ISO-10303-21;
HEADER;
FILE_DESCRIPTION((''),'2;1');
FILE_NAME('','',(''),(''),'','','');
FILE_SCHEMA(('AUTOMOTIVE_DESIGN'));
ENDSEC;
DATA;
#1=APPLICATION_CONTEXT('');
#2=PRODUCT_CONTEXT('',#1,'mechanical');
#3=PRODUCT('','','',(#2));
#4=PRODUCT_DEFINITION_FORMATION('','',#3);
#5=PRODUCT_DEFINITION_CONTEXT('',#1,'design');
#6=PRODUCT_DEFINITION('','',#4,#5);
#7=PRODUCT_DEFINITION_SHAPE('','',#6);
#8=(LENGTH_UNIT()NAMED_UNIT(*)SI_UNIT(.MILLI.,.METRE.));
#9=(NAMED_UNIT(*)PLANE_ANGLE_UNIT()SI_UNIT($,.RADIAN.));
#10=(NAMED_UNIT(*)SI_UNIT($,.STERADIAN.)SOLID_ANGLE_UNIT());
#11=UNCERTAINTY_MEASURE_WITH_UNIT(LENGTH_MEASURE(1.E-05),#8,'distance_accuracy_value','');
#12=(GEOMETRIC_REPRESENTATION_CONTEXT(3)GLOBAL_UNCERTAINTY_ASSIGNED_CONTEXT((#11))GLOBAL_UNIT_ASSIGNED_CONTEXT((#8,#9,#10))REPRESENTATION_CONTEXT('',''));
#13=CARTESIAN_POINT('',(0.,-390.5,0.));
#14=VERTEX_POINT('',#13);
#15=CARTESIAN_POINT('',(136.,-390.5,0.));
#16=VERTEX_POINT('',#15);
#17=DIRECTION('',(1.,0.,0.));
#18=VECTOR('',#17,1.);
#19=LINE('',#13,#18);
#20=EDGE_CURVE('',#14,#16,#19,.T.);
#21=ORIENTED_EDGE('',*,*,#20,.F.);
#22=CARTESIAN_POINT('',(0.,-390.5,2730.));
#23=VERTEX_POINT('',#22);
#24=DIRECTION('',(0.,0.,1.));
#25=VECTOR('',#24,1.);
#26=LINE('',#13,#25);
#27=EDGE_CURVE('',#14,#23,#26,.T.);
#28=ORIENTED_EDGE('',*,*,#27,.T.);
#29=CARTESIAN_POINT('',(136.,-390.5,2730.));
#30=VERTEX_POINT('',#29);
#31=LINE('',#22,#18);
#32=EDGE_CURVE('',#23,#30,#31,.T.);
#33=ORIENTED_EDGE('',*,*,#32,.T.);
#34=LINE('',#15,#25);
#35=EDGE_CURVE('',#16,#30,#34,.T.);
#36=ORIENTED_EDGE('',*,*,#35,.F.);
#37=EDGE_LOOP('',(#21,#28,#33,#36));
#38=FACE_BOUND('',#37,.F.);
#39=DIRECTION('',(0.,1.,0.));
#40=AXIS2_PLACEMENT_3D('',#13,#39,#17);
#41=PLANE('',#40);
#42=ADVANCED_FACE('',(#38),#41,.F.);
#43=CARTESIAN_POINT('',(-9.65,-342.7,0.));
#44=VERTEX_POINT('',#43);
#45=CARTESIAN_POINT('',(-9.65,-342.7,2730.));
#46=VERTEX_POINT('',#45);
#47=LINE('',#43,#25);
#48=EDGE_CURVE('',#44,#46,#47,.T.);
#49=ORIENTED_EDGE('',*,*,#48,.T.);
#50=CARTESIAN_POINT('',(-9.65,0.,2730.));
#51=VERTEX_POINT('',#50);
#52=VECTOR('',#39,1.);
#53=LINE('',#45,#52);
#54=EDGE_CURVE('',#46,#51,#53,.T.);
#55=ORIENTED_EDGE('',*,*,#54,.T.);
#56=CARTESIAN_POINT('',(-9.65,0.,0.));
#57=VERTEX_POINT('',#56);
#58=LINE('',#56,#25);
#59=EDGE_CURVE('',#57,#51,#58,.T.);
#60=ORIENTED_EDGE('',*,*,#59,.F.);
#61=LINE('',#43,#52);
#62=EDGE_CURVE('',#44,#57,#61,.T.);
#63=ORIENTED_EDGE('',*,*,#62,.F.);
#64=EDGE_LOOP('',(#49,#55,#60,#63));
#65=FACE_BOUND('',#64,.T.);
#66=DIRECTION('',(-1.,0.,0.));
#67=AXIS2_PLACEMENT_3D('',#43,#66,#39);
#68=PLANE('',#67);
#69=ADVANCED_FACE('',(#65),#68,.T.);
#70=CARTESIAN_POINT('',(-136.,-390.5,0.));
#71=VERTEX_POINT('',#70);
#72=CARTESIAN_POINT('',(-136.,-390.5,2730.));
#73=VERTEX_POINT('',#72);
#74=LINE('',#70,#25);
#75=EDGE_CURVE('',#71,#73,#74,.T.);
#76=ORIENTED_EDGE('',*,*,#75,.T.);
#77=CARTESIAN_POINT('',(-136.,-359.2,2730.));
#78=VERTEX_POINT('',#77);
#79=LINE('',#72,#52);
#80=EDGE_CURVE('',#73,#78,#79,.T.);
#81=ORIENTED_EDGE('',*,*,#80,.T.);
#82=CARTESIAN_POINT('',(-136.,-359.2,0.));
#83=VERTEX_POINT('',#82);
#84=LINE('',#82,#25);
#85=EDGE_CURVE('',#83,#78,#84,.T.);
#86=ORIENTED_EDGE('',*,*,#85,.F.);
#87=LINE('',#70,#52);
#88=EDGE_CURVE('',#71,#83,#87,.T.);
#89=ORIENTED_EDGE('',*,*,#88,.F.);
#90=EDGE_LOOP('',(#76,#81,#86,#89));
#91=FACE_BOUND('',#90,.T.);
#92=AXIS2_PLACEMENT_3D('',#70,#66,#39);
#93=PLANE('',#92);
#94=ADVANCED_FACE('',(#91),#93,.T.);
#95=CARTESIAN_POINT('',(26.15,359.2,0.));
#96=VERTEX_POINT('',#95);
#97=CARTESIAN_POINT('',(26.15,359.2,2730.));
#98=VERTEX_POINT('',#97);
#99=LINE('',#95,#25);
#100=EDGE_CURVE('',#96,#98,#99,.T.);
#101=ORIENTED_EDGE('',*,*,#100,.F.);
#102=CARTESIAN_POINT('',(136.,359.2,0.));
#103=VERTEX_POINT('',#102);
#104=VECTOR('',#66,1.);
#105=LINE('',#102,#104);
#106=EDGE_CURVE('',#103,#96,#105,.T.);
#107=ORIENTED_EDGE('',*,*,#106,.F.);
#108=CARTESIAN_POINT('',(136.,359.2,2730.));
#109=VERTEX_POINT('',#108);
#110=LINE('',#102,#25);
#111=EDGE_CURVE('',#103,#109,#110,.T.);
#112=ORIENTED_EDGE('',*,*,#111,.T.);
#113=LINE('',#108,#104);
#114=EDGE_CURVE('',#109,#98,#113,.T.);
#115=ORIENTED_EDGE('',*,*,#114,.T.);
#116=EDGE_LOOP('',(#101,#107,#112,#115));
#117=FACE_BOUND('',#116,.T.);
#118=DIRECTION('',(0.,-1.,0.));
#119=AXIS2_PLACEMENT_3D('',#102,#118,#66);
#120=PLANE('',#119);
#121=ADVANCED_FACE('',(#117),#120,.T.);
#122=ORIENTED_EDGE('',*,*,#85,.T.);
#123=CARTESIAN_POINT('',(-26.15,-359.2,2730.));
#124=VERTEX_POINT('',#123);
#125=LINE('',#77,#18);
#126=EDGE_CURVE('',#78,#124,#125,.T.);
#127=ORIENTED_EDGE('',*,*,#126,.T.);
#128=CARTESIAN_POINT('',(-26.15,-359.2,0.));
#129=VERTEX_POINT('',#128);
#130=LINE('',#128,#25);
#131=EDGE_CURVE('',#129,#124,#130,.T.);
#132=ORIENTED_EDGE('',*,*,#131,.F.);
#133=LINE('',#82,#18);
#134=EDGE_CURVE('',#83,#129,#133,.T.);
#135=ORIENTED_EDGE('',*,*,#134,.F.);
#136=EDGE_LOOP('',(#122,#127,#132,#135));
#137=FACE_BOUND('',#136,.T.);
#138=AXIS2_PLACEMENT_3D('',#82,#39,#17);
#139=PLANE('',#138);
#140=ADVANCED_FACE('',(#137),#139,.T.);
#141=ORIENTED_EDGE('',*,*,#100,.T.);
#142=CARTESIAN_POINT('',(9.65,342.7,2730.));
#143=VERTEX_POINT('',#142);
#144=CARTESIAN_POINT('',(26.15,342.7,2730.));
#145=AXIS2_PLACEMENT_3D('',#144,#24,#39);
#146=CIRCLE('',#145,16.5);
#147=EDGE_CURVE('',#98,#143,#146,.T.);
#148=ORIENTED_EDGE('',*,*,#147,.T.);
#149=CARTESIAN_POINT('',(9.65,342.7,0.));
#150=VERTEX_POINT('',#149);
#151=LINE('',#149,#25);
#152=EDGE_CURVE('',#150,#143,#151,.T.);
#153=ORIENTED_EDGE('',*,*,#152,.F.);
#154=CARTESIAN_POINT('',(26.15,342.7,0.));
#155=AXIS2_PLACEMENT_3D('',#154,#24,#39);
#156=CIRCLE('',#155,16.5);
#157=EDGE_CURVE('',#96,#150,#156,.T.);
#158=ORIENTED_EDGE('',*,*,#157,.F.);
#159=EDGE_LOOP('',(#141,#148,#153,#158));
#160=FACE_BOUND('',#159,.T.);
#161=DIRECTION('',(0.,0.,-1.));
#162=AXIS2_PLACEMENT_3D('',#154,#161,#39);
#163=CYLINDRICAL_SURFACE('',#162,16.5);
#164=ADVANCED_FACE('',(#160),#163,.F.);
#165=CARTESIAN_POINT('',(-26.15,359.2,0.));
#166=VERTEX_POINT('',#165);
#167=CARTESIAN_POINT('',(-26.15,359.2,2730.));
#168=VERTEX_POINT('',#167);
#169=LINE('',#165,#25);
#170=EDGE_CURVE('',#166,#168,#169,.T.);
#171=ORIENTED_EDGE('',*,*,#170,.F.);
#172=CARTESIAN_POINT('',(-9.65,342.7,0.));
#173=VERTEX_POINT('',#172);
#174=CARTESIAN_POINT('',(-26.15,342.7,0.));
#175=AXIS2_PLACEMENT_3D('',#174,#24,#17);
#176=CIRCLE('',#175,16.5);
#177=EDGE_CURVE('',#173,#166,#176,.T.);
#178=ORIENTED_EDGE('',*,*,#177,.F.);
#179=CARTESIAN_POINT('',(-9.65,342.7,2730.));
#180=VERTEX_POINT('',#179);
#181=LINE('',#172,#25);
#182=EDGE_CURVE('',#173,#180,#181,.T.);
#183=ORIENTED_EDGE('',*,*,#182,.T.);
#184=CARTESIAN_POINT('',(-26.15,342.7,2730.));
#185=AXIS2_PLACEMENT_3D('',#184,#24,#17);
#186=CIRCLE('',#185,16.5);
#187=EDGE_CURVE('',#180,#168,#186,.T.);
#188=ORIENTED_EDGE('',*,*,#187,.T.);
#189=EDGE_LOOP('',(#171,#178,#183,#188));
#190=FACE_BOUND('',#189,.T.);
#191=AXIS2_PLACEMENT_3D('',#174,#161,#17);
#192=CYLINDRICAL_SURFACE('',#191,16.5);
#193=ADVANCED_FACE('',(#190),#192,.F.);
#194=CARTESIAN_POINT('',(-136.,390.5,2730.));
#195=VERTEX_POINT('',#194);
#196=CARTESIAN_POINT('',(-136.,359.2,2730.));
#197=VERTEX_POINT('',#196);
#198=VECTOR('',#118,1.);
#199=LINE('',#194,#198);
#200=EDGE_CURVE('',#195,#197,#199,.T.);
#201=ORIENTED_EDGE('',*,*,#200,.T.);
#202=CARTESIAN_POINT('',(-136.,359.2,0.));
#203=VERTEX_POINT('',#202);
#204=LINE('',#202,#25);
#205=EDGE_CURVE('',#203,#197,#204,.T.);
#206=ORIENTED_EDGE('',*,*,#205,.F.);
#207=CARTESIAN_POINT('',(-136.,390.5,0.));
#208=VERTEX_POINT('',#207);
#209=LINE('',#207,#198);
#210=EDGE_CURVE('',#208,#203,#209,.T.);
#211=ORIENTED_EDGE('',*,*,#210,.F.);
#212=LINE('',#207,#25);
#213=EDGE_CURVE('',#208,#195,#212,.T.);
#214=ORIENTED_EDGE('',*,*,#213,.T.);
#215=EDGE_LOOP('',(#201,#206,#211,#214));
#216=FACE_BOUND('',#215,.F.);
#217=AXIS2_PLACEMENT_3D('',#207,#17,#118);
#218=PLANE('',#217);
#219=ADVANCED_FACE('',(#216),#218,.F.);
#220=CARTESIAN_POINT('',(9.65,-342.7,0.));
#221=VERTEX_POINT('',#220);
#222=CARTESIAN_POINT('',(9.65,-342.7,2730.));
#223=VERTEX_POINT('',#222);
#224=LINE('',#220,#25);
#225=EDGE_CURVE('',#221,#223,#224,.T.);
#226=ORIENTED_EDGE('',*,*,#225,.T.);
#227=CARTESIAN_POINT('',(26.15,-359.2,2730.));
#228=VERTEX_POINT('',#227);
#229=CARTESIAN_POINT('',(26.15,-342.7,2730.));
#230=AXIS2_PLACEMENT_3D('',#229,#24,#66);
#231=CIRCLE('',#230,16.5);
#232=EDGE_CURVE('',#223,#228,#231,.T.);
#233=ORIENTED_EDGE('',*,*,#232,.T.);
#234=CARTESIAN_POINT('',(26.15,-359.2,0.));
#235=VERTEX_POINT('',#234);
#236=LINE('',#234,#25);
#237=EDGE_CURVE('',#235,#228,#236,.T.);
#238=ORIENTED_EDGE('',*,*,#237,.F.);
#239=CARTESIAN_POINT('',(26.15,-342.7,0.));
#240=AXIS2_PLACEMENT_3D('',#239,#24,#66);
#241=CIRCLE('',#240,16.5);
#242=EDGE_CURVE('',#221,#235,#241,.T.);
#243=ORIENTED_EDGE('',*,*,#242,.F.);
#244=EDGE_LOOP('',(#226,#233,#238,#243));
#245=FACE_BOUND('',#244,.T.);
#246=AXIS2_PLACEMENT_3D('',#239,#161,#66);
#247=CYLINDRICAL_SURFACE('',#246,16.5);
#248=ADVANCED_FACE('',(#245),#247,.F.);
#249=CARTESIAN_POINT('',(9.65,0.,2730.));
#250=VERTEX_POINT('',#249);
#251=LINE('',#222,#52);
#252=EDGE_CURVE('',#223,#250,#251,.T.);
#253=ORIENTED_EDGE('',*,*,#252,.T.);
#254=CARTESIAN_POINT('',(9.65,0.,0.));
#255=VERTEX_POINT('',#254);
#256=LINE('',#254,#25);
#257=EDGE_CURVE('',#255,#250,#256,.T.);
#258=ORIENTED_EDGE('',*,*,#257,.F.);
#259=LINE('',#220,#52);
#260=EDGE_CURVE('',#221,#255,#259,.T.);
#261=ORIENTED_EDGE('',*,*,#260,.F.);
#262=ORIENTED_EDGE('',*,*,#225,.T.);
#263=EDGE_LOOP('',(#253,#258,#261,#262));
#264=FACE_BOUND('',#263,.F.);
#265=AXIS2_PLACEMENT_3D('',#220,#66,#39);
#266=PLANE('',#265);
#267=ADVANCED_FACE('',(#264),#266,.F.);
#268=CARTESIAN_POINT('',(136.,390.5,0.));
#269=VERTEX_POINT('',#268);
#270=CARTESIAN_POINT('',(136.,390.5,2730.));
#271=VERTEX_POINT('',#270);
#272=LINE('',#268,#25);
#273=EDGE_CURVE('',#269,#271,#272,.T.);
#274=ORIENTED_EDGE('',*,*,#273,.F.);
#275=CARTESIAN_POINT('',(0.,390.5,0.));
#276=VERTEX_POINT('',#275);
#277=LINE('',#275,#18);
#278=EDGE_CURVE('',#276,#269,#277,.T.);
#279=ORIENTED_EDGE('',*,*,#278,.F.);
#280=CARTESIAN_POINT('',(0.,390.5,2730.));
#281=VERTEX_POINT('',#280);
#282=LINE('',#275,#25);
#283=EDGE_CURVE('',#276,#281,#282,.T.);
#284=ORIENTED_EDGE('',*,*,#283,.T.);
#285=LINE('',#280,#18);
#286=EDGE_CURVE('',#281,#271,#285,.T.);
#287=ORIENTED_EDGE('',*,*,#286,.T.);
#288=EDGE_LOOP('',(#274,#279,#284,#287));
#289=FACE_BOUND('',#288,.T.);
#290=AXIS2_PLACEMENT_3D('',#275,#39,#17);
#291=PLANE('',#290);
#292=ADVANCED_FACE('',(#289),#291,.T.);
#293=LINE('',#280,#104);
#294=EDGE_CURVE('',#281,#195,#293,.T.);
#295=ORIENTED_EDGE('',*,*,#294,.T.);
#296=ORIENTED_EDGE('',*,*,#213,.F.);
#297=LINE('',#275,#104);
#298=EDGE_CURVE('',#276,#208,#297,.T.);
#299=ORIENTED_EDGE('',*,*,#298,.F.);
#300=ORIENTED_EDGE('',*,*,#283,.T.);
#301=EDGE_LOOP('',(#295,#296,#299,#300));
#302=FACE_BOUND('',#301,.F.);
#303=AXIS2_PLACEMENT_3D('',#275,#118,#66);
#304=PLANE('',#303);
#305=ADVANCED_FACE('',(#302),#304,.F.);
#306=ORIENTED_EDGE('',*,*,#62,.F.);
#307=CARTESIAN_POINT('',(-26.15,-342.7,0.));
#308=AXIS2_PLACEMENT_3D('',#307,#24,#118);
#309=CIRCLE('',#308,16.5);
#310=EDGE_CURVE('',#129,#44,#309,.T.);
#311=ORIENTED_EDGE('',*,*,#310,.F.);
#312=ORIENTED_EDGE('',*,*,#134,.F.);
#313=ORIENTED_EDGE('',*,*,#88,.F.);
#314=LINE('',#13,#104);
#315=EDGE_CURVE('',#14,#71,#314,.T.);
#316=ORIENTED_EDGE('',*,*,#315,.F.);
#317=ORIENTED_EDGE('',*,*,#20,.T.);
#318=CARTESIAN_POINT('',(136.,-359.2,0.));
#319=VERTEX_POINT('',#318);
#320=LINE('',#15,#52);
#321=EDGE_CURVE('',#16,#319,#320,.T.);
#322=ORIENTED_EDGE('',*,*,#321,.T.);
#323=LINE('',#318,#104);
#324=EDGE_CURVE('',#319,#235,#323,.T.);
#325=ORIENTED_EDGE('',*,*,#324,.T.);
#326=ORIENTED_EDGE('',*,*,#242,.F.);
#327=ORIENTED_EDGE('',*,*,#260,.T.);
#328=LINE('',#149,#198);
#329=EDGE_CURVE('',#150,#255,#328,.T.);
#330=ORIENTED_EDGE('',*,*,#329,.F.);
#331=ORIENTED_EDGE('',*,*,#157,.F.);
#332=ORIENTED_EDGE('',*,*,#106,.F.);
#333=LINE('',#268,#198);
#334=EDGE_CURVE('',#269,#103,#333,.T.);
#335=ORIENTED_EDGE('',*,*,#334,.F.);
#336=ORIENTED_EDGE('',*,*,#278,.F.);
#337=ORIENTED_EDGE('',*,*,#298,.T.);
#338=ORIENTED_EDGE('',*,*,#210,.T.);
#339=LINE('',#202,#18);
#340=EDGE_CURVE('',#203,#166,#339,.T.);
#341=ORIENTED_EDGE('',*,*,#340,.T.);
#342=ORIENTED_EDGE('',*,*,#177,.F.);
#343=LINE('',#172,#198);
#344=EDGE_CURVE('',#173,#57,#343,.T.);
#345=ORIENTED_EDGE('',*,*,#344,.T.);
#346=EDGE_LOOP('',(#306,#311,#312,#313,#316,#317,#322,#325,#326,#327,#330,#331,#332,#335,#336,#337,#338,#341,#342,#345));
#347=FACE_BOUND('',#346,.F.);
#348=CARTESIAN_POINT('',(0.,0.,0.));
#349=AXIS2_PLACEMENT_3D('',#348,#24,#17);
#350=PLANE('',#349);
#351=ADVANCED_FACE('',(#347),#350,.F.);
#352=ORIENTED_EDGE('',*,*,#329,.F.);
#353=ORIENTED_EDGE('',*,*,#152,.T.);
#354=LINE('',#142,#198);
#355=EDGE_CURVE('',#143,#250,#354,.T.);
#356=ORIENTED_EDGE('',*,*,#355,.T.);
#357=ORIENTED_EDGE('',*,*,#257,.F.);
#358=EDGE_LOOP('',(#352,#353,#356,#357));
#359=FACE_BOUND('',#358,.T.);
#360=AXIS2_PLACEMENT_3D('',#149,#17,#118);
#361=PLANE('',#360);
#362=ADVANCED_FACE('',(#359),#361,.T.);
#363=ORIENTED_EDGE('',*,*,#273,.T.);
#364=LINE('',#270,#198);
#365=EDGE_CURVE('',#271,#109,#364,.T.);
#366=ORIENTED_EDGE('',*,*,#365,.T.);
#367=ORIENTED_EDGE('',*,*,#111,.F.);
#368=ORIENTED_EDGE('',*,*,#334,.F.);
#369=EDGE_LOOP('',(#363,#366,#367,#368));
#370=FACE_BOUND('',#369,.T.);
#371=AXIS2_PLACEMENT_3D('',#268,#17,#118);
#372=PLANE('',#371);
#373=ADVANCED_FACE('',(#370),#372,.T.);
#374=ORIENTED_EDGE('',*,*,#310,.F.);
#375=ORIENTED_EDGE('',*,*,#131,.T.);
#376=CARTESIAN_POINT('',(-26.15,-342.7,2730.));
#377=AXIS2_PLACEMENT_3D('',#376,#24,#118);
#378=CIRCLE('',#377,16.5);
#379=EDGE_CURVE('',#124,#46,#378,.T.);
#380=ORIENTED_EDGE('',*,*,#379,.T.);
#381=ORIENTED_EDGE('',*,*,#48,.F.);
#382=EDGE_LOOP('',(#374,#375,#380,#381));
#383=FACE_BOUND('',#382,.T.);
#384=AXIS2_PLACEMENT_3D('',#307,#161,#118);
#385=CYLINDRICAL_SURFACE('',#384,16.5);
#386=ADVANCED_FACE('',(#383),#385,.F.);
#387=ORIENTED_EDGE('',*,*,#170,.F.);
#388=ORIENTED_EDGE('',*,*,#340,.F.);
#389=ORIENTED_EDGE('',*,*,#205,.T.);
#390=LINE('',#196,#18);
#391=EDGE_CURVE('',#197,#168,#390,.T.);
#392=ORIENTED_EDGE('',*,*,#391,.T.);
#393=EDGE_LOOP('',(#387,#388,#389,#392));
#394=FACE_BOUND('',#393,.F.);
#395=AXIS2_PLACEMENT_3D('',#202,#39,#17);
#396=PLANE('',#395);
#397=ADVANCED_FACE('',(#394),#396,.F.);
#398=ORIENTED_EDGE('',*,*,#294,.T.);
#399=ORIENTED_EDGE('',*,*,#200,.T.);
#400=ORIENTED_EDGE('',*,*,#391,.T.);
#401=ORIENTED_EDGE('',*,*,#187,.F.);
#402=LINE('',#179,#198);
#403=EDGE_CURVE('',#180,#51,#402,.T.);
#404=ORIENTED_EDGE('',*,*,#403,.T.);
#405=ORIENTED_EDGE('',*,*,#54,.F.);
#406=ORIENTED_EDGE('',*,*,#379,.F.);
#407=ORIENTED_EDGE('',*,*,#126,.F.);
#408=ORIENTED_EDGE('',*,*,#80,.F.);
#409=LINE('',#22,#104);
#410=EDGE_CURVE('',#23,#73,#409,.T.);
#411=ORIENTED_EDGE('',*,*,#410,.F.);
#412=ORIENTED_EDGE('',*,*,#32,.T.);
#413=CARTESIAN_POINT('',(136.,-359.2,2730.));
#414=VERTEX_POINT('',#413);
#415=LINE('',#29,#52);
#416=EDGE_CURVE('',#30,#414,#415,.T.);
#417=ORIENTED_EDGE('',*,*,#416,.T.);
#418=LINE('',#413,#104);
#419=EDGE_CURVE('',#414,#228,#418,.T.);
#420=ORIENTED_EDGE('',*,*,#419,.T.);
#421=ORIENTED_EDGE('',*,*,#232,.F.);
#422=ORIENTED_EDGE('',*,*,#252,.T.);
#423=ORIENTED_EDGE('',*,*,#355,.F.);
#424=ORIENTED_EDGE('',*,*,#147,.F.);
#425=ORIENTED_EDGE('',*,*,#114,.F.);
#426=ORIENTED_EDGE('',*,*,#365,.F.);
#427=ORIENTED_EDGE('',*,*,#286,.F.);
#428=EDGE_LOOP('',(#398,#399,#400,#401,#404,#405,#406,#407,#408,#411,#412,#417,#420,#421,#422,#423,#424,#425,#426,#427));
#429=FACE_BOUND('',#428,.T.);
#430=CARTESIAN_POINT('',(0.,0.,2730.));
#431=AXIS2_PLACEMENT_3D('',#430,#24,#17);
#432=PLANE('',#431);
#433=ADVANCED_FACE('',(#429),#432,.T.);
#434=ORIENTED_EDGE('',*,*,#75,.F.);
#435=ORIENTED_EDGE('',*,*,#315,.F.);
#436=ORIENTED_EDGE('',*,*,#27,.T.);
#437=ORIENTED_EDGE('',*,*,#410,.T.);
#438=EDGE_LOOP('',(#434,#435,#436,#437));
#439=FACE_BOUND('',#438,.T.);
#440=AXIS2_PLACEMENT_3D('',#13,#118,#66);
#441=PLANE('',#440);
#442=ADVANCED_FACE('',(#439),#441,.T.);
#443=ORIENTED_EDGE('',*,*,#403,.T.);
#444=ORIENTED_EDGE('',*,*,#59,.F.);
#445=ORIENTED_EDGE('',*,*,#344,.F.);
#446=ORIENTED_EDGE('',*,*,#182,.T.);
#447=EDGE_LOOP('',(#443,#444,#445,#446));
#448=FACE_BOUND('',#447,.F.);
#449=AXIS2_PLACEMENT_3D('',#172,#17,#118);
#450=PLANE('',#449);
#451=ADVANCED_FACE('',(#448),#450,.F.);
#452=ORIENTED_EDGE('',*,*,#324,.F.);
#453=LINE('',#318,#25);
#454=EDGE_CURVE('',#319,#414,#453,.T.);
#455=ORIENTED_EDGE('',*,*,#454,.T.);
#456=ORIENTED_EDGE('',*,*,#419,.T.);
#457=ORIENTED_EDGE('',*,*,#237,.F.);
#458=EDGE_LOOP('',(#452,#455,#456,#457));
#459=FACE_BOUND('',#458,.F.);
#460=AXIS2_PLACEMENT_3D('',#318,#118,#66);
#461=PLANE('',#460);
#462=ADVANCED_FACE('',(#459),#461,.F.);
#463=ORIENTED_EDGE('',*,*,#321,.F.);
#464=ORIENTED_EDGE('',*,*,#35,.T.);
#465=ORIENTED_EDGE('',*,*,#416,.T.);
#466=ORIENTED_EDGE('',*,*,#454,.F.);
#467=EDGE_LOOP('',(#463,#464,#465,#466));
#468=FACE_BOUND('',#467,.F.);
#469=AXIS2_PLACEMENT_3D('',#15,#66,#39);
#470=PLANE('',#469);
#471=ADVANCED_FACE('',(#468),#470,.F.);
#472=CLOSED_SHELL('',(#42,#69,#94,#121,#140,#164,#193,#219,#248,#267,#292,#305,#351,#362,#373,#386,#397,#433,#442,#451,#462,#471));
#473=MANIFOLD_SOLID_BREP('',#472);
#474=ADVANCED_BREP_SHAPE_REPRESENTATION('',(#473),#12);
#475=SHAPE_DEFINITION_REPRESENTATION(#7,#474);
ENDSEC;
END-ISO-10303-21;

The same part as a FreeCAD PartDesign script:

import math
import FreeCAD as App
import Part
import Sketcher

V = App.Vector
Q = App.Units.Quantity

doc = App.newDocument("Part")
body = doc.addObject("PartDesign::Body", "Body")

sketch1 = doc.addObject("Sketcher::SketchObject", "Sketch")
body.addObject(sketch1)
sketch1.AttachmentSupport = (doc.XY_Plane, [""])
sketch1.MapMode = "FlatFace"
sketch1.addGeometry(Part.LineSegment(V(-136, -359, 0), V(-136, -390, 0)), False)
sketch1.addGeometry(Part.LineSegment(V(-136, -390, 0), V(136, -390, 0)), False)
sketch1.addGeometry(Part.LineSegment(V(136, -390, 0), V(136, -359, 0)), False)
sketch1.addGeometry(Part.LineSegment(V(136, -359, 0), V(26, -359, 0)), False)
sketch1.addGeometry(Part.ArcOfCircle(Part.Circle(V(26, -343, 0), V(0, 0, 1), 16), math.radians(180), math.radians(270)), False)
sketch1.addGeometry(Part.LineSegment(V(10, -343, 0), V(10, 343, 0)), False)
sketch1.addGeometry(Part.ArcOfCircle(Part.Circle(V(26, 343, 0), V(0, 0, 1), 16), math.radians(90), math.radians(180)), False)
sketch1.addGeometry(Part.LineSegment(V(26, 359, 0), V(136, 359, 0)), False)
sketch1.addGeometry(Part.LineSegment(V(136, 359, 0), V(136, 390, 0)), False)
sketch1.addGeometry(Part.LineSegment(V(136, 390, 0), V(-136, 390, 0)), False)
sketch1.addGeometry(Part.LineSegment(V(-136, 390, 0), V(-136, 359, 0)), False)
sketch1.addGeometry(Part.LineSegment(V(-136, 359, 0), V(-26, 359, 0)), False)
sketch1.addGeometry(Part.ArcOfCircle(Part.Circle(V(-26, 343, 0), V(0, 0, 1), 16), math.radians(0), math.radians(90)), False)
sketch1.addGeometry(Part.LineSegment(V(-10, 343, 0), V(-10, -343, 0)), False)
sketch1.addGeometry(Part.ArcOfCircle(Part.Circle(V(-26, -343, 0), V(0, 0, 1), 16), math.radians(-90), math.radians(0)), False)
sketch1.addGeometry(Part.LineSegment(V(-26, -359, 0), V(-136, -359, 0)), False)
sketch1.addConstraint(Sketcher.Constraint("Coincident", 0, 2, 1, 1))
sketch1.addConstraint(Sketcher.Constraint("Coincident", 1, 2, 2, 1))
sketch1.addConstraint(Sketcher.Constraint("Coincident", 2, 2, 3, 1))
sketch1.addConstraint(Sketcher.Constraint("Tangent", 3, 2, 4, 2))
sketch1.addConstraint(Sketcher.Constraint("Tangent", 4, 1, 5, 1))
sketch1.addConstraint(Sketcher.Constraint("Tangent", 5, 2, 6, 2))
sketch1.addConstraint(Sketcher.Constraint("Tangent", 6, 1, 7, 1))
sketch1.addConstraint(Sketcher.Constraint("Coincident", 7, 2, 8, 1))
sketch1.addConstraint(Sketcher.Constraint("Coincident", 8, 2, 9, 1))
sketch1.addConstraint(Sketcher.Constraint("Coincident", 9, 2, 10, 1))
sketch1.addConstraint(Sketcher.Constraint("Coincident", 10, 2, 11, 1))
sketch1.addConstraint(Sketcher.Constraint("Tangent", 11, 2, 12, 2))
sketch1.addConstraint(Sketcher.Constraint("Tangent", 12, 1, 13, 1))
sketch1.addConstraint(Sketcher.Constraint("Tangent", 13, 2, 14, 2))
sketch1.addConstraint(Sketcher.Constraint("Tangent", 14, 1, 15, 1))
sketch1.addConstraint(Sketcher.Constraint("Coincident", 15, 2, 0, 1))
sketch1.addConstraint(Sketcher.Constraint("Vertical", 0))
sketch1.addConstraint(Sketcher.Constraint("Horizontal", 1))
sketch1.addConstraint(Sketcher.Constraint("Vertical", 2))
sketch1.addConstraint(Sketcher.Constraint("Horizontal", 3))
sketch1.addConstraint(Sketcher.Constraint("Vertical", 5))
sketch1.addConstraint(Sketcher.Constraint("Horizontal", 7))
sketch1.addConstraint(Sketcher.Constraint("Vertical", 8))
sketch1.addConstraint(Sketcher.Constraint("Horizontal", 9))
sketch1.addConstraint(Sketcher.Constraint("Vertical", 10))
sketch1.addConstraint(Sketcher.Constraint("Horizontal", 11))
sketch1.addConstraint(Sketcher.Constraint("Vertical", 13))
sketch1.addConstraint(Sketcher.Constraint("Horizontal", 15))
sketch1.addConstraint(Sketcher.Constraint("Equal", 4, 6))
sketch1.addConstraint(Sketcher.Constraint("Equal", 6, 12))
sketch1.addConstraint(Sketcher.Constraint("Equal", 12, 14))
sketch1.addConstraint(Sketcher.Constraint("Symmetric", 4, 3, 12, 3, -1, 1))
sketch1.addConstraint(Sketcher.Constraint("Symmetric", 0, 2, 8, 2, -1, 1))
sketch1.addConstraint(Sketcher.Constraint("Symmetric", 7, 2, 10, 2, -2))
sketch1.addConstraint(Sketcher.Constraint("Symmetric", 2, 2, 15, 2, -2))
sketch1.addConstraint(Sketcher.Constraint("Radius", 4, Q("16.5 mm")))
sketch1.addConstraint(Sketcher.Constraint("DistanceY", 0, 2, 0, 1, Q("31.3 mm")))
sketch1.addConstraint(Sketcher.Constraint("DistanceX", 0, 2, -1, 1, Q("136 mm")))
sketch1.addConstraint(Sketcher.Constraint("DistanceY", 0, 2, -1, 1, Q("390.5 mm")))
sketch1.addConstraint(Sketcher.Constraint("DistanceX", -1, 1, 4, 1, Q("9.65 mm")))
pad1 = doc.addObject("PartDesign::Pad", "Pad")
body.addObject(pad1)
pad1.Profile = sketch1
pad1.Length = 2730

doc.recompute()
